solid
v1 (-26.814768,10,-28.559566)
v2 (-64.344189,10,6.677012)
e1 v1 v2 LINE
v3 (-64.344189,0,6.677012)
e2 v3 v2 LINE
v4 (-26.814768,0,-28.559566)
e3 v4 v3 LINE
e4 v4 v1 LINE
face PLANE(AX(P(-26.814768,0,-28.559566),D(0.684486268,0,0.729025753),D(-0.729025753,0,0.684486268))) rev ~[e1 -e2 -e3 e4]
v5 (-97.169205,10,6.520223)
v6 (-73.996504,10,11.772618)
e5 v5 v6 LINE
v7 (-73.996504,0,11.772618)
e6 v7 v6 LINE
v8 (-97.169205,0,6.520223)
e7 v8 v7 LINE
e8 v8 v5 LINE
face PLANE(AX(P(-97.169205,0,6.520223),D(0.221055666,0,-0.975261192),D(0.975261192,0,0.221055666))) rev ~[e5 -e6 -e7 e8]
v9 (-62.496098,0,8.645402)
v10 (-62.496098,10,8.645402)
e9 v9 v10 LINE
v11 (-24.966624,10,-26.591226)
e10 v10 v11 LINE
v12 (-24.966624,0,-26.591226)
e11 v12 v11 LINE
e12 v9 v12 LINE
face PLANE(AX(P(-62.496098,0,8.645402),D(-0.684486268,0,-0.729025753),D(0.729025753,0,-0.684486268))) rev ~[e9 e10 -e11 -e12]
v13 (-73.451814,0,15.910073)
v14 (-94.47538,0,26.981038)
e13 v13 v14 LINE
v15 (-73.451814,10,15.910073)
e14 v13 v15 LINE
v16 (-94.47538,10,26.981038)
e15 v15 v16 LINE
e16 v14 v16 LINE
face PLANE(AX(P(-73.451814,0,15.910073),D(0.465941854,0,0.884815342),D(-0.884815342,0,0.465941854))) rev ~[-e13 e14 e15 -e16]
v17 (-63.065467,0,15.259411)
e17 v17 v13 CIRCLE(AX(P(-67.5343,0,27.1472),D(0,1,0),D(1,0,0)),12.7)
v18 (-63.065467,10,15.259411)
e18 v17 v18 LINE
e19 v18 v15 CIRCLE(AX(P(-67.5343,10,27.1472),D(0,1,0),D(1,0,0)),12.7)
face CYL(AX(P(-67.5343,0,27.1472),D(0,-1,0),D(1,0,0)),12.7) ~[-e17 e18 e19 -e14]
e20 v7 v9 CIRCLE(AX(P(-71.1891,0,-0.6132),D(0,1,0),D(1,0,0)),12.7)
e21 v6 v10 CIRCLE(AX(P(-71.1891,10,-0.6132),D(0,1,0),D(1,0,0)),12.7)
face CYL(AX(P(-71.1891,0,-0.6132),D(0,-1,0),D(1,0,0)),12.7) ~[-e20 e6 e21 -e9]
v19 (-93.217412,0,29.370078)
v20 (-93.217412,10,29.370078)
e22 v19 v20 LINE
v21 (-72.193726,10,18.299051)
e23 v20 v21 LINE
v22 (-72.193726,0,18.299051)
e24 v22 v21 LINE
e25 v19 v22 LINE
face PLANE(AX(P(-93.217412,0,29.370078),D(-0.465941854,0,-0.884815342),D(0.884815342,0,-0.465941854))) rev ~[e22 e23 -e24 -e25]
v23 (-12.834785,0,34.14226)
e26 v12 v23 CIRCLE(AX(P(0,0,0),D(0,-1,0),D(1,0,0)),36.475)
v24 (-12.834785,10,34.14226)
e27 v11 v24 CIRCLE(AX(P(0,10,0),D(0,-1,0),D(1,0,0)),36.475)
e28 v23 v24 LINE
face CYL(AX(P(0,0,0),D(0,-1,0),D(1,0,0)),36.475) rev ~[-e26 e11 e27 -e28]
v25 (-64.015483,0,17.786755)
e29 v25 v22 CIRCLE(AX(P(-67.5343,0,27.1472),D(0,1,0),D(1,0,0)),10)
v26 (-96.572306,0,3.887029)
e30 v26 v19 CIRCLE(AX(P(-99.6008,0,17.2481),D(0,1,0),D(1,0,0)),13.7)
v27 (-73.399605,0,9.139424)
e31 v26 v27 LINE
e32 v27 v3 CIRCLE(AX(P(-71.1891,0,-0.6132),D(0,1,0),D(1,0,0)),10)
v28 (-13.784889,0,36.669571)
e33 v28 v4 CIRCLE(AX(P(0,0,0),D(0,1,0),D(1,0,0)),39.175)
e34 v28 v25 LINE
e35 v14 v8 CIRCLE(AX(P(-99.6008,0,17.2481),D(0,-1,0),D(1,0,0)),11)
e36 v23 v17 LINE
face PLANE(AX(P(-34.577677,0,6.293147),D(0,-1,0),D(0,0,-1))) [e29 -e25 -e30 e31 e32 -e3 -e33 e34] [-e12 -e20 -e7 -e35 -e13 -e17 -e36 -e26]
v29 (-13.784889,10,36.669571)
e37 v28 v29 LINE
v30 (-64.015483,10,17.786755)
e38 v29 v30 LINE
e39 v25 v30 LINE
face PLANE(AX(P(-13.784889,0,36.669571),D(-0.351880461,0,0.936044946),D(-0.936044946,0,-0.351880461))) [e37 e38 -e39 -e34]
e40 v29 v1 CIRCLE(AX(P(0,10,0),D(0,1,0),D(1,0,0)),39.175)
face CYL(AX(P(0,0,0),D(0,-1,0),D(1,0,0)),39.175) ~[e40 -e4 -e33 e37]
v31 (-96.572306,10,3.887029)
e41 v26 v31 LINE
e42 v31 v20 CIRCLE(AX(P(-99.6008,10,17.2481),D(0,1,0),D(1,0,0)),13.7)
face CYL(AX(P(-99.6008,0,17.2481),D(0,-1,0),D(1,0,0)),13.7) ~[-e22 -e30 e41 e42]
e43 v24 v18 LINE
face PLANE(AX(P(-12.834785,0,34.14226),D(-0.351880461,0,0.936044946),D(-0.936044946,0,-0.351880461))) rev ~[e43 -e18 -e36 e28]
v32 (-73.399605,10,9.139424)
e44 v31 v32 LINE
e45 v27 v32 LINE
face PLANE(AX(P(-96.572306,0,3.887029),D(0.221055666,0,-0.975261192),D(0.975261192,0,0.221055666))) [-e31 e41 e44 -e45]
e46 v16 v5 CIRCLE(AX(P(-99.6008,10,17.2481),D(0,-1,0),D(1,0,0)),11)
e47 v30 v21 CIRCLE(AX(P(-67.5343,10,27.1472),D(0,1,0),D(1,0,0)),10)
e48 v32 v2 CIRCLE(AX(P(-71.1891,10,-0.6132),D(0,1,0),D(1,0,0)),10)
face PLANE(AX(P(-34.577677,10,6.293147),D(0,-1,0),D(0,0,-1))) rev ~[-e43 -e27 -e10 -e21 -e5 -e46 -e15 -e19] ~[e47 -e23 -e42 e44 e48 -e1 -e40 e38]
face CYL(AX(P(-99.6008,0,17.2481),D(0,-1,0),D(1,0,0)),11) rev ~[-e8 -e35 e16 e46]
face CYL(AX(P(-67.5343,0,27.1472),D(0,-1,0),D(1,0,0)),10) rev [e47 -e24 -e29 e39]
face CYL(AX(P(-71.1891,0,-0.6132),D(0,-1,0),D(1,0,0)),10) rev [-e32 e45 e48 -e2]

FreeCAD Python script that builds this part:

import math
import FreeCAD as App
import Part
import Sketcher
Q = App.Units.Quantity

doc = App.newDocument("Part")
body = doc.addObject("PartDesign::Body", "Body")

# Sketch on XZ plane
sketch1 = body.newObject("Sketcher::SketchObject", "Sketch")
sketch1.AttachmentSupport = (doc.getObject("XZ_Plane"), [""])
sketch1.MapMode = "FlatFace"
sketch1.addGeometry([
    Part.ArcOfCircle(Part.Circle(App.Vector(0, 0, 0), App.Vector(0, 0, 1), 39), math.radians(-133), math.radians(111)),  # 0
    Part.LineSegment(App.Vector(-14, 37, 0), App.Vector(-64, 18, 0)),  # 1
    Part.ArcOfCircle(Part.Circle(App.Vector(-68, 27, 0), App.Vector(0, 0, 1), 10), math.radians(-118), math.radians(-69)),  # 2
    Part.LineSegment(App.Vector(-72, 18, 0), App.Vector(-93, 29, 0)),  # 3
    Part.ArcOfCircle(Part.Circle(App.Vector(-100, 17, 0), App.Vector(0, 0, 1), 14), math.radians(62), math.radians(283)),  # 4
    Part.LineSegment(App.Vector(-97, 4, 0), App.Vector(-73, 9, 0)),  # 5
    Part.ArcOfCircle(Part.Circle(App.Vector(-71, -1, 0), App.Vector(0, 0, 1), 10), math.radians(47), math.radians(103)),  # 6
    Part.LineSegment(App.Vector(-64, 7, 0), App.Vector(-27, -29, 0)),  # 7
    Part.LineSegment(App.Vector(-63, 15, 0), App.Vector(-13, 34, 0)),  # 8
    Part.ArcOfCircle(Part.Circle(App.Vector(0, 0, 0), App.Vector(0, 0, 1), 36), math.radians(-133), math.radians(111)),  # 9
    Part.LineSegment(App.Vector(-25, -27, 0), App.Vector(-62, 9, 0)),  # 10
    Part.ArcOfCircle(Part.Circle(App.Vector(-71, -1, 0), App.Vector(0, 0, 1), 13), math.radians(47), math.radians(103)),  # 11
    Part.LineSegment(App.Vector(-74, 12, 0), App.Vector(-97, 7, 0)),  # 12
    Part.ArcOfCircle(Part.Circle(App.Vector(-100, 17, 0), App.Vector(0, 0, 1), 11), math.radians(62), math.radians(283)),  # 13
    Part.LineSegment(App.Vector(-94, 27, 0), App.Vector(-73, 16, 0)),  # 14
    Part.ArcOfCircle(Part.Circle(App.Vector(-68, 27, 0), App.Vector(0, 0, 1), 13), math.radians(-118), math.radians(-69)),  # 15
], False)
sketch1.addConstraint([
    Sketcher.Constraint("Tangent", 0, 2, 1, 1),
    Sketcher.Constraint("Tangent", 1, 2, 2, 2),
    Sketcher.Constraint("Tangent", 2, 1, 3, 1),
    Sketcher.Constraint("Tangent", 3, 2, 4, 1),
    Sketcher.Constraint("Tangent", 4, 2, 5, 1),
    Sketcher.Constraint("Tangent", 5, 2, 6, 2),
    Sketcher.Constraint("Tangent", 6, 1, 7, 1),
    Sketcher.Constraint("Tangent", 7, 2, 0, 1),
    Sketcher.Constraint("Tangent", 8, 2, 9, 2),
    Sketcher.Constraint("Tangent", 9, 1, 10, 1),
    Sketcher.Constraint("Tangent", 10, 2, 11, 1),
    Sketcher.Constraint("Tangent", 11, 2, 12, 1),
    Sketcher.Constraint("Tangent", 12, 2, 13, 2),
    Sketcher.Constraint("Tangent", 13, 1, 14, 1),
    Sketcher.Constraint("Tangent", 14, 2, 15, 1),
    Sketcher.Constraint("Tangent", 15, 2, 8, 1),
    Sketcher.Constraint("Coincident", 0, 3, -1, 1),
    Sketcher.Constraint("Coincident", 9, 3, -1, 1),
    Sketcher.Constraint("Coincident", 11, 3, 6, 3),
    Sketcher.Constraint("Coincident", 13, 3, 4, 3),
    Sketcher.Constraint("Coincident", 15, 3, 2, 3),
    Sketcher.Constraint("Equal", 2, 6),
    Sketcher.Constraint("Equal", 11, 15),
    Sketcher.Constraint("Parallel", 1, 8),
    Sketcher.Constraint("Parallel", 5, 12),
    Sketcher.Constraint("Equal", 3, 5),
    Sketcher.Constraint("Radius", 2, Q("10 mm")),
    Sketcher.Constraint("Radius", 13, Q("11 mm")),
    Sketcher.Constraint("Radius", 4, Q("13.7 mm")),
    Sketcher.Constraint("Radius", 0, Q("39.175 mm")),
    Sketcher.Constraint("Angle", 3, Q("152.229 deg")),
    Sketcher.Constraint("Angle", 5, Q("12.771 deg")),
    Sketcher.Constraint("DistanceY", 6, 3, 1, 2, Q("18.4 mm")),
    Sketcher.Constraint("DistanceY", -1, 1, 3, 2, Q("29.37 mm")),
    Sketcher.Constraint("DistanceY", -1, 1, 14, 2, Q("15.91 mm")),
])
pad1 = body.newObject("PartDesign::Pad", "Pad")
pad1.Profile = sketch1
pad1.Length = 10
pad1.Reversed = True

doc.recompute()
